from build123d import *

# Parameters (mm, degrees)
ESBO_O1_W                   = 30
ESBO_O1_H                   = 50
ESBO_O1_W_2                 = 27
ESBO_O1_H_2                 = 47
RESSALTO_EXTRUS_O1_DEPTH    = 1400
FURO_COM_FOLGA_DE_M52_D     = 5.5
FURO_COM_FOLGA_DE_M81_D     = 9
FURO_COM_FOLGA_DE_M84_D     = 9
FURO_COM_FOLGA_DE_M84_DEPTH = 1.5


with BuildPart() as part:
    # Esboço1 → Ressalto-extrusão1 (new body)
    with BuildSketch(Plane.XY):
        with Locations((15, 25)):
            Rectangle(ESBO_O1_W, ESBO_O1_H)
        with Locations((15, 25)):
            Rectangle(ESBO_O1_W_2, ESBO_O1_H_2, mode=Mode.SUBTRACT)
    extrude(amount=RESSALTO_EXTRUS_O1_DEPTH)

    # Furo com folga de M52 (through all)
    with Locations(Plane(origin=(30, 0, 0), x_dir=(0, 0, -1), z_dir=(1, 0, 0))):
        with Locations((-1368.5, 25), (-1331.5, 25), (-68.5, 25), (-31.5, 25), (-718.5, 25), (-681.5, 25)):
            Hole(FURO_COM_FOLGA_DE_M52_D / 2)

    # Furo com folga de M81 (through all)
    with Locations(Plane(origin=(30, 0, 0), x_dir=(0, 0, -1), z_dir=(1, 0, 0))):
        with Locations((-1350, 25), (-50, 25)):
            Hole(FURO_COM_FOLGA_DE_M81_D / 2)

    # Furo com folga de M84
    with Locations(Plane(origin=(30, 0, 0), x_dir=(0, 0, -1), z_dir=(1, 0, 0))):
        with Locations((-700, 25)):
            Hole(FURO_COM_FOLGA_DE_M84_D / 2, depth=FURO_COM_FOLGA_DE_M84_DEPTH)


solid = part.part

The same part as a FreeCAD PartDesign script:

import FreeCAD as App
import Part
import Sketcher
from FreeCAD import Vector

doc = App.newDocument("Part")
body = doc.addObject("PartDesign::Body", "Body")

# Sketch on XY plane
sketch1 = body.newObject("Sketcher::SketchObject", "Sketch")
sketch1.AttachmentSupport = (doc.getObject("XY_Plane"), [""])
sketch1.MapMode = "FlatFace"
sketch1.addGeometry(Part.LineSegment(Vector(0, 50, 0), Vector(0, 0, 0)), False)
sketch1.addGeometry(Part.LineSegment(Vector(0, 0, 0), Vector(30, 0, 0)), False)
sketch1.addGeometry(Part.LineSegment(Vector(30, 0, 0), Vector(30, 50, 0)), False)
sketch1.addGeometry(Part.LineSegment(Vector(30, 50, 0), Vector(0, 50, 0)), False)
sketch1.addGeometry(Part.LineSegment(Vector(28, 2, 0), Vector(2, 2, 0)), False)
sketch1.addGeometry(Part.LineSegment(Vector(2, 2, 0), Vector(2, 48, 0)), False)
sketch1.addGeometry(Part.LineSegment(Vector(2, 48, 0), Vector(28, 48, 0)), False)
sketch1.addGeometry(Part.LineSegment(Vector(28, 48, 0), Vector(28, 2, 0)), False)
sketch1.addConstraint(Sketcher.Constraint("Coincident", 0, 2, 1, 1))
sketch1.addConstraint(Sketcher.Constraint("Coincident", 1, 2, 2, 1))
sketch1.addConstraint(Sketcher.Constraint("Coincident", 2, 2, 3, 1))
sketch1.addConstraint(Sketcher.Constraint("Coincident", 3, 2, 0, 1))
sketch1.addConstraint(Sketcher.Constraint("Coincident", 4, 2, 5, 1))
sketch1.addConstraint(Sketcher.Constraint("Coincident", 5, 2, 6, 1))
sketch1.addConstraint(Sketcher.Constraint("Coincident", 6, 2, 7, 1))
sketch1.addConstraint(Sketcher.Constraint("Coincident", 7, 2, 4, 1))
sketch1.addConstraint(Sketcher.Constraint("Vertical", 0))
sketch1.addConstraint(Sketcher.Constraint("Horizontal", 1))
sketch1.addConstraint(Sketcher.Constraint("Vertical", 2))
sketch1.addConstraint(Sketcher.Constraint("Horizontal", 3))
sketch1.addConstraint(Sketcher.Constraint("Horizontal", 4))
sketch1.addConstraint(Sketcher.Constraint("Vertical", 5))
sketch1.addConstraint(Sketcher.Constraint("Horizontal", 6))
sketch1.addConstraint(Sketcher.Constraint("Vertical", 7))
sketch1.addConstraint(Sketcher.Constraint("Coincident", 0, 2, -1, 1))
sketch1.addConstraint(Sketcher.Constraint("DistanceX", 1, 1, 1, 2, 30.0))
sketch1.addConstraint(Sketcher.Constraint("DistanceX", 4, 2, 4, 1, 27.0))
sketch1.addConstraint(Sketcher.Constraint("DistanceY", 0, 2, 0, 1, 50.0))
sketch1.addConstraint(Sketcher.Constraint("DistanceY", 5, 1, 5, 2, 47.0))
sketch1.addConstraint(Sketcher.Constraint("DistanceX", -1, 1, 4, 2, 1.5))
sketch1.addConstraint(Sketcher.Constraint("DistanceY", -1, 1, 4, 2, 1.5))
pad1 = body.newObject("PartDesign::Pad", "Pad")
pad1.Profile = sketch1
pad1.Length = 1400

# Sketch on YZ plane
sketch2 = body.newObject("Sketcher::SketchObject", "Sketch001")
sketch2.AttachmentSupport = (doc.getObject("YZ_Plane"), [""])
sketch2.MapMode = "FlatFace"
sketch2.AttachmentOffset = App.Placement(Vector(0, 0, 30), App.Rotation())
sketch2.addGeometry(Part.Circle(Vector(25, 1368.5, 0), Vector(0, 0, 1), 2.8), False)
sketch2.addGeometry(Part.Circle(Vector(25, 1331.5, 0), Vector(0, 0, 1), 2.8), False)
sketch2.addGeometry(Part.Circle(Vector(25, 68.5, 0), Vector(0, 0, 1), 2.8), False)
sketch2.addGeometry(Part.Circle(Vector(25, 31.5, 0), Vector(0, 0, 1), 2.8), False)
sketch2.addGeometry(Part.Circle(Vector(25, 718.5, 0), Vector(0, 0, 1), 2.8), False)
sketch2.addGeometry(Part.Circle(Vector(25, 681.5, 0), Vector(0, 0, 1), 2.8), False)
sketch2.addConstraint(Sketcher.Constraint("Equal", 0, 1))
sketch2.addConstraint(Sketcher.Constraint("Equal", 1, 2))
sketch2.addConstraint(Sketcher.Constraint("Equal", 2, 3))
sketch2.addConstraint(Sketcher.Constraint("Equal", 3, 4))
sketch2.addConstraint(Sketcher.Constraint("Equal", 4, 5))
sketch2.addConstraint(Sketcher.Constraint("Vertical", 0, 3, 1, 3))
sketch2.addConstraint(Sketcher.Constraint("Vertical", 1, 3, 2, 3))
sketch2.addConstraint(Sketcher.Constraint("Vertical", 2, 3, 3, 3))
sketch2.addConstraint(Sketcher.Constraint("Vertical", 3, 3, 4, 3))
sketch2.addConstraint(Sketcher.Constraint("Vertical", 4, 3, 5, 3))
sketch2.addConstraint(Sketcher.Constraint("Diameter", 0, 5.5))
sketch2.addConstraint(Sketcher.Constraint("DistanceX", -1, 1, 0, 3, 25.0))
sketch2.addConstraint(Sketcher.Constraint("DistanceY", 1, 3, 0, 3, 37.0))
sketch2.addConstraint(Sketcher.Constraint("DistanceY", 2, 3, 1, 3, 1263.0))
sketch2.addConstraint(Sketcher.Constraint("DistanceY", 3, 3, 2, 3, 37.0))
sketch2.addConstraint(Sketcher.Constraint("DistanceY", 4, 3, 1, 3, 613.0))
sketch2.addConstraint(Sketcher.Constraint("DistanceY", 5, 3, 4, 3, 37.0))
sketch2.addConstraint(Sketcher.Constraint("DistanceY", -1, 1, 0, 3, 1368.5))
doc.recompute()
hole = body.newObject("PartDesign::Hole", "Hole")
hole.Profile = sketch2
hole.ThreadType = "None"
hole.Diameter = 5.5
hole.DepthType = "ThroughAll"

# Sketch on YZ plane
sketch3 = body.newObject("Sketcher::SketchObject", "Sketch002")
sketch3.AttachmentSupport = (doc.getObject("YZ_Plane"), [""])
sketch3.MapMode = "FlatFace"
sketch3.AttachmentOffset = App.Placement(Vector(0, 0, 30), App.Rotation())
sketch3.addGeometry(Part.Circle(Vector(25, 1350, 0), Vector(0, 0, 1), 4.5), False)
sketch3.addGeometry(Part.Circle(Vector(25, 50, 0), Vector(0, 0, 1), 4.5), False)
sketch3.addConstraint(Sketcher.Constraint("Equal", 0, 1))
sketch3.addConstraint(Sketcher.Constraint("Vertical", 0, 3, 1, 3))
sketch3.addConstraint(Sketcher.Constraint("Diameter", 0, 9.0))
sketch3.addConstraint(Sketcher.Constraint("DistanceX", -1, 1, 0, 3, 25.0))
sketch3.addConstraint(Sketcher.Constraint("DistanceY", -1, 1, 0, 3, 1350.0))
sketch3.addConstraint(Sketcher.Constraint("DistanceY", -1, 1, 1, 3, 50.0))
doc.recompute()
hole2 = body.newObject("PartDesign::Hole", "Hole001")
hole2.Profile = sketch3
hole2.ThreadType = "None"
hole2.Diameter = 9
hole2.DepthType = "ThroughAll"

# Sketch on YZ plane
sketch4 = body.newObject("Sketcher::SketchObject", "Sketch003")
sketch4.AttachmentSupport = (doc.getObject("YZ_Plane"), [""])
sketch4.MapMode = "FlatFace"
sketch4.AttachmentOffset = App.Placement(Vector(0, 0, 30), App.Rotation())
sketch4.addGeometry(Part.Circle(Vector(25, 700, 0), Vector(0, 0, 1), 4.5), False)
sketch4.addConstraint(Sketcher.Constraint("Diameter", 0, 9.0))
sketch4.addConstraint(Sketcher.Constraint("DistanceX", -1, 1, 0, 3, 25.0))
sketch4.addConstraint(Sketcher.Constraint("DistanceY", -1, 1, 0, 3, 700.0))
doc.recompute()
hole3 = body.newObject("PartDesign::Hole", "Hole002")
hole3.Profile = sketch4
hole3.ThreadType = "None"
hole3.Diameter = 9
hole3.DepthType = "Dimension"
hole3.Depth = 1.5
hole3.DrillPoint = "Flat"

doc.recompute()
